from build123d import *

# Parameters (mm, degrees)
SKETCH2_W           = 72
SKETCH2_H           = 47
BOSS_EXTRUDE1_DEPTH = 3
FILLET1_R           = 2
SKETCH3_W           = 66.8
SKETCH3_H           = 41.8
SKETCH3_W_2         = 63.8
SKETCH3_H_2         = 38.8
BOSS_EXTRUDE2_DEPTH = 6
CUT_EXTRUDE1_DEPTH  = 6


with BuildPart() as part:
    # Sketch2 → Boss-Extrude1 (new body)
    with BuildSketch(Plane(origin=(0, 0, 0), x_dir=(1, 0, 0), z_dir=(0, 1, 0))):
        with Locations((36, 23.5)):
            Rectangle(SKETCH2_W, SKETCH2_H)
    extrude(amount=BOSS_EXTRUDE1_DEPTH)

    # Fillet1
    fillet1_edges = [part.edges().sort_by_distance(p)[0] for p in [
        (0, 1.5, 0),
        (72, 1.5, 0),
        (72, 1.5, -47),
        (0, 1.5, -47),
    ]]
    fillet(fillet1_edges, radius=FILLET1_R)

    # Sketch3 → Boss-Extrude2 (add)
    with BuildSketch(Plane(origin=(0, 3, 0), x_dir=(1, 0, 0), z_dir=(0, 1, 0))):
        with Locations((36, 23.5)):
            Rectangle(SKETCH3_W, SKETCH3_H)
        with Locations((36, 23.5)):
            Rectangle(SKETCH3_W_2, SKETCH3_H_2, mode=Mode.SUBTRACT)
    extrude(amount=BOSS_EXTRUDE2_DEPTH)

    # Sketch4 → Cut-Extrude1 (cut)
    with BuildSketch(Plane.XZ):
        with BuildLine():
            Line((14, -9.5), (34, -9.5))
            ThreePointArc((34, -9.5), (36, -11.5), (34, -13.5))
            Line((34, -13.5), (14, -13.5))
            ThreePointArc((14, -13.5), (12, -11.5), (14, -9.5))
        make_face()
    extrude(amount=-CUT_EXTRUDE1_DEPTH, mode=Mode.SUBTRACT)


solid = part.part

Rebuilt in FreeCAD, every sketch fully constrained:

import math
import FreeCAD as App
import Part
import Sketcher
Q = App.Units.Quantity


def edges_at(feature, points):
    """Names of the edges that pass closest to the given points."""
    edges = feature.Shape.Edges
    near = lambda p: min(range(len(edges)), key=lambda i: edges[i].distToShape(Part.Vertex(*p))[0])
    return sorted({f"Edge{near(p) + 1}" for p in points})

doc = App.newDocument("Part")
body = doc.addObject("PartDesign::Body", "Body")

# Sketch on XZ plane
sketch1 = body.newObject("Sketcher::SketchObject", "Sketch")
sketch1.AttachmentSupport = (doc.getObject("XZ_Plane"), [""])
sketch1.MapMode = "FlatFace"
sketch1.addGeometry(Part.LineSegment(App.Vector(0, -47, 0), App.Vector(0, 0, 0)), False)
sketch1.addGeometry(Part.LineSegment(App.Vector(0, 0, 0), App.Vector(72, 0, 0)), False)
sketch1.addGeometry(Part.LineSegment(App.Vector(72, 0, 0), App.Vector(72, -47, 0)), False)
sketch1.addGeometry(Part.LineSegment(App.Vector(72, -47, 0), App.Vector(0, -47, 0)), False)
sketch1.addConstraint(Sketcher.Constraint("Coincident", 0, 2, 1, 1))
sketch1.addConstraint(Sketcher.Constraint("Coincident", 1, 2, 2, 1))
sketch1.addConstraint(Sketcher.Constraint("Coincident", 2, 2, 3, 1))
sketch1.addConstraint(Sketcher.Constraint("Coincident", 3, 2, 0, 1))
sketch1.addConstraint(Sketcher.Constraint("Vertical", 0))
sketch1.addConstraint(Sketcher.Constraint("Horizontal", 1))
sketch1.addConstraint(Sketcher.Constraint("Vertical", 2))
sketch1.addConstraint(Sketcher.Constraint("Horizontal", 3))
sketch1.addConstraint(Sketcher.Constraint("Coincident", 0, 2, -1, 1))
sketch1.addConstraint(Sketcher.Constraint("DistanceX", 1, 1, 1, 2, Q("72 mm")))
sketch1.addConstraint(Sketcher.Constraint("DistanceY", 0, 1, 0, 2, Q("47 mm")))
pad1 = body.newObject("PartDesign::Pad", "Pad")
pad1.Profile = sketch1
pad1.Length = 3
pad1.Reversed = True
doc.recompute()

fillet = body.newObject("PartDesign::Fillet", "Fillet")
fillet.Base = (pad1, edges_at(pad1, [
    (0, 1.5, 0),
    (72, 1.5, 0),
    (72, 1.5, -47),
    (0, 1.5, -47),
]))
fillet.Radius = 2

# Sketch on XZ plane
sketch2 = body.newObject("Sketcher::SketchObject", "Sketch001")
sketch2.AttachmentSupport = (doc.getObject("XZ_Plane"), [""])
sketch2.MapMode = "FlatFace"
sketch2.AttachmentOffset = App.Placement(App.Vector(0, 0, -3), App.Rotation())
sketch2.addGeometry(Part.LineSegment(App.Vector(3, -44, 0), App.Vector(3, -3, 0)), False)
sketch2.addGeometry(Part.LineSegment(App.Vector(3, -3, 0), App.Vector(69, -3, 0)), False)
sketch2.addGeometry(Part.LineSegment(App.Vector(69, -3, 0), App.Vector(69, -44, 0)), False)
sketch2.addGeometry(Part.LineSegment(App.Vector(69, -44, 0), App.Vector(3, -44, 0)), False)
sketch2.addGeometry(Part.LineSegment(App.Vector(68, -4, 0), App.Vector(4, -4, 0)), False)
sketch2.addGeometry(Part.LineSegment(App.Vector(4, -4, 0), App.Vector(4, -43, 0)), False)
sketch2.addGeometry(Part.LineSegment(App.Vector(4, -43, 0), App.Vector(68, -43, 0)), False)
sketch2.addGeometry(Part.LineSegment(App.Vector(68, -43, 0), App.Vector(68, -4, 0)), False)
sketch2.addConstraint(Sketcher.Constraint("Coincident", 0, 2, 1, 1))
sketch2.addConstraint(Sketcher.Constraint("Coincident", 1, 2, 2, 1))
sketch2.addConstraint(Sketcher.Constraint("Coincident", 2, 2, 3, 1))
sketch2.addConstraint(Sketcher.Constraint("Coincident", 3, 2, 0, 1))
sketch2.addConstraint(Sketcher.Constraint("Coincident", 4, 2, 5, 1))
sketch2.addConstraint(Sketcher.Constraint("Coincident", 5, 2, 6, 1))
sketch2.addConstraint(Sketcher.Constraint("Coincident", 6, 2, 7, 1))
sketch2.addConstraint(Sketcher.Constraint("Coincident", 7, 2, 4, 1))
sketch2.addConstraint(Sketcher.Constraint("Vertical", 0))
sketch2.addConstraint(Sketcher.Constraint("Horizontal", 1))
sketch2.addConstraint(Sketcher.Constraint("Vertical", 2))
sketch2.addConstraint(Sketcher.Constraint("Horizontal", 3))
sketch2.addConstraint(Sketcher.Constraint("Horizontal", 4))
sketch2.addConstraint(Sketcher.Constraint("Vertical", 5))
sketch2.addConstraint(Sketcher.Constraint("Horizontal", 6))
sketch2.addConstraint(Sketcher.Constraint("Vertical", 7))
sketch2.addConstraint(Sketcher.Constraint("DistanceX", 1, 1, 1, 2, Q("66.8 mm")))
sketch2.addConstraint(Sketcher.Constraint("DistanceX", 4, 2, 4, 1, Q("63.8 mm")))
sketch2.addConstraint(Sketcher.Constraint("DistanceY", 0, 1, 0, 2, Q("41.8 mm")))
sketch2.addConstraint(Sketcher.Constraint("DistanceY", 5, 2, 5, 1, Q("38.8 mm")))
sketch2.addConstraint(Sketcher.Constraint("DistanceX", -1, 1, 0, 2, Q("2.6 mm")))
sketch2.addConstraint(Sketcher.Constraint("DistanceY", 0, 2, -1, 1, Q("2.6 mm")))
sketch2.addConstraint(Sketcher.Constraint("DistanceX", -1, 1, 4, 2, Q("4.1 mm")))
sketch2.addConstraint(Sketcher.Constraint("DistanceY", 4, 2, -1, 1, Q("4.1 mm")))
pad2 = body.newObject("PartDesign::Pad", "Pad001")
pad2.Profile = sketch2
pad2.Length = 6
pad2.Reversed = True

# Sketch on XZ plane
sketch3 = body.newObject("Sketcher::SketchObject", "Sketch002")
sketch3.AttachmentSupport = (doc.getObject("XZ_Plane"), [""])
sketch3.MapMode = "FlatFace"
sketch3.addGeometry(Part.LineSegment(App.Vector(34, -9.5, 0), App.Vector(14, -9.5, 0)), False)
sketch3.addGeometry(Part.ArcOfCircle(Part.Circle(App.Vector(14, -11.5, 0), App.Vector(0, 0, 1), 2), math.radians(90), math.radians(270)), False)
sketch3.addGeometry(Part.LineSegment(App.Vector(14, -13.5, 0), App.Vector(34, -13.5, 0)), False)
sketch3.addGeometry(Part.ArcOfCircle(Part.Circle(App.Vector(34, -11.5, 0), App.Vector(0, 0, 1), 2), math.radians(-90), math.radians(90)), False)
sketch3.addConstraint(Sketcher.Constraint("Tangent", 0, 2, 1, 1))
sketch3.addConstraint(Sketcher.Constraint("Tangent", 1, 2, 2, 1))
sketch3.addConstraint(Sketcher.Constraint("Tangent", 2, 2, 3, 1))
sketch3.addConstraint(Sketcher.Constraint("Tangent", 3, 2, 0, 1))
sketch3.addConstraint(Sketcher.Constraint("Horizontal", 0))
sketch3.addConstraint(Sketcher.Constraint("Horizontal", 2))
sketch3.addConstraint(Sketcher.Constraint("Radius", 1, Q("2 mm")))
sketch3.addConstraint(Sketcher.Constraint("DistanceX", 0, 2, 0, 1, Q("20 mm")))
sketch3.addConstraint(Sketcher.Constraint("DistanceX", -1, 1, 1, 3, Q("14 mm")))
sketch3.addConstraint(Sketcher.Constraint("DistanceY", 1, 3, -1, 1, Q("11.5 mm")))
pocket1 = body.newObject("PartDesign::Pocket", "Pocket")
pocket1.Profile = sketch3
pocket1.Length = 6

doc.recompute()
